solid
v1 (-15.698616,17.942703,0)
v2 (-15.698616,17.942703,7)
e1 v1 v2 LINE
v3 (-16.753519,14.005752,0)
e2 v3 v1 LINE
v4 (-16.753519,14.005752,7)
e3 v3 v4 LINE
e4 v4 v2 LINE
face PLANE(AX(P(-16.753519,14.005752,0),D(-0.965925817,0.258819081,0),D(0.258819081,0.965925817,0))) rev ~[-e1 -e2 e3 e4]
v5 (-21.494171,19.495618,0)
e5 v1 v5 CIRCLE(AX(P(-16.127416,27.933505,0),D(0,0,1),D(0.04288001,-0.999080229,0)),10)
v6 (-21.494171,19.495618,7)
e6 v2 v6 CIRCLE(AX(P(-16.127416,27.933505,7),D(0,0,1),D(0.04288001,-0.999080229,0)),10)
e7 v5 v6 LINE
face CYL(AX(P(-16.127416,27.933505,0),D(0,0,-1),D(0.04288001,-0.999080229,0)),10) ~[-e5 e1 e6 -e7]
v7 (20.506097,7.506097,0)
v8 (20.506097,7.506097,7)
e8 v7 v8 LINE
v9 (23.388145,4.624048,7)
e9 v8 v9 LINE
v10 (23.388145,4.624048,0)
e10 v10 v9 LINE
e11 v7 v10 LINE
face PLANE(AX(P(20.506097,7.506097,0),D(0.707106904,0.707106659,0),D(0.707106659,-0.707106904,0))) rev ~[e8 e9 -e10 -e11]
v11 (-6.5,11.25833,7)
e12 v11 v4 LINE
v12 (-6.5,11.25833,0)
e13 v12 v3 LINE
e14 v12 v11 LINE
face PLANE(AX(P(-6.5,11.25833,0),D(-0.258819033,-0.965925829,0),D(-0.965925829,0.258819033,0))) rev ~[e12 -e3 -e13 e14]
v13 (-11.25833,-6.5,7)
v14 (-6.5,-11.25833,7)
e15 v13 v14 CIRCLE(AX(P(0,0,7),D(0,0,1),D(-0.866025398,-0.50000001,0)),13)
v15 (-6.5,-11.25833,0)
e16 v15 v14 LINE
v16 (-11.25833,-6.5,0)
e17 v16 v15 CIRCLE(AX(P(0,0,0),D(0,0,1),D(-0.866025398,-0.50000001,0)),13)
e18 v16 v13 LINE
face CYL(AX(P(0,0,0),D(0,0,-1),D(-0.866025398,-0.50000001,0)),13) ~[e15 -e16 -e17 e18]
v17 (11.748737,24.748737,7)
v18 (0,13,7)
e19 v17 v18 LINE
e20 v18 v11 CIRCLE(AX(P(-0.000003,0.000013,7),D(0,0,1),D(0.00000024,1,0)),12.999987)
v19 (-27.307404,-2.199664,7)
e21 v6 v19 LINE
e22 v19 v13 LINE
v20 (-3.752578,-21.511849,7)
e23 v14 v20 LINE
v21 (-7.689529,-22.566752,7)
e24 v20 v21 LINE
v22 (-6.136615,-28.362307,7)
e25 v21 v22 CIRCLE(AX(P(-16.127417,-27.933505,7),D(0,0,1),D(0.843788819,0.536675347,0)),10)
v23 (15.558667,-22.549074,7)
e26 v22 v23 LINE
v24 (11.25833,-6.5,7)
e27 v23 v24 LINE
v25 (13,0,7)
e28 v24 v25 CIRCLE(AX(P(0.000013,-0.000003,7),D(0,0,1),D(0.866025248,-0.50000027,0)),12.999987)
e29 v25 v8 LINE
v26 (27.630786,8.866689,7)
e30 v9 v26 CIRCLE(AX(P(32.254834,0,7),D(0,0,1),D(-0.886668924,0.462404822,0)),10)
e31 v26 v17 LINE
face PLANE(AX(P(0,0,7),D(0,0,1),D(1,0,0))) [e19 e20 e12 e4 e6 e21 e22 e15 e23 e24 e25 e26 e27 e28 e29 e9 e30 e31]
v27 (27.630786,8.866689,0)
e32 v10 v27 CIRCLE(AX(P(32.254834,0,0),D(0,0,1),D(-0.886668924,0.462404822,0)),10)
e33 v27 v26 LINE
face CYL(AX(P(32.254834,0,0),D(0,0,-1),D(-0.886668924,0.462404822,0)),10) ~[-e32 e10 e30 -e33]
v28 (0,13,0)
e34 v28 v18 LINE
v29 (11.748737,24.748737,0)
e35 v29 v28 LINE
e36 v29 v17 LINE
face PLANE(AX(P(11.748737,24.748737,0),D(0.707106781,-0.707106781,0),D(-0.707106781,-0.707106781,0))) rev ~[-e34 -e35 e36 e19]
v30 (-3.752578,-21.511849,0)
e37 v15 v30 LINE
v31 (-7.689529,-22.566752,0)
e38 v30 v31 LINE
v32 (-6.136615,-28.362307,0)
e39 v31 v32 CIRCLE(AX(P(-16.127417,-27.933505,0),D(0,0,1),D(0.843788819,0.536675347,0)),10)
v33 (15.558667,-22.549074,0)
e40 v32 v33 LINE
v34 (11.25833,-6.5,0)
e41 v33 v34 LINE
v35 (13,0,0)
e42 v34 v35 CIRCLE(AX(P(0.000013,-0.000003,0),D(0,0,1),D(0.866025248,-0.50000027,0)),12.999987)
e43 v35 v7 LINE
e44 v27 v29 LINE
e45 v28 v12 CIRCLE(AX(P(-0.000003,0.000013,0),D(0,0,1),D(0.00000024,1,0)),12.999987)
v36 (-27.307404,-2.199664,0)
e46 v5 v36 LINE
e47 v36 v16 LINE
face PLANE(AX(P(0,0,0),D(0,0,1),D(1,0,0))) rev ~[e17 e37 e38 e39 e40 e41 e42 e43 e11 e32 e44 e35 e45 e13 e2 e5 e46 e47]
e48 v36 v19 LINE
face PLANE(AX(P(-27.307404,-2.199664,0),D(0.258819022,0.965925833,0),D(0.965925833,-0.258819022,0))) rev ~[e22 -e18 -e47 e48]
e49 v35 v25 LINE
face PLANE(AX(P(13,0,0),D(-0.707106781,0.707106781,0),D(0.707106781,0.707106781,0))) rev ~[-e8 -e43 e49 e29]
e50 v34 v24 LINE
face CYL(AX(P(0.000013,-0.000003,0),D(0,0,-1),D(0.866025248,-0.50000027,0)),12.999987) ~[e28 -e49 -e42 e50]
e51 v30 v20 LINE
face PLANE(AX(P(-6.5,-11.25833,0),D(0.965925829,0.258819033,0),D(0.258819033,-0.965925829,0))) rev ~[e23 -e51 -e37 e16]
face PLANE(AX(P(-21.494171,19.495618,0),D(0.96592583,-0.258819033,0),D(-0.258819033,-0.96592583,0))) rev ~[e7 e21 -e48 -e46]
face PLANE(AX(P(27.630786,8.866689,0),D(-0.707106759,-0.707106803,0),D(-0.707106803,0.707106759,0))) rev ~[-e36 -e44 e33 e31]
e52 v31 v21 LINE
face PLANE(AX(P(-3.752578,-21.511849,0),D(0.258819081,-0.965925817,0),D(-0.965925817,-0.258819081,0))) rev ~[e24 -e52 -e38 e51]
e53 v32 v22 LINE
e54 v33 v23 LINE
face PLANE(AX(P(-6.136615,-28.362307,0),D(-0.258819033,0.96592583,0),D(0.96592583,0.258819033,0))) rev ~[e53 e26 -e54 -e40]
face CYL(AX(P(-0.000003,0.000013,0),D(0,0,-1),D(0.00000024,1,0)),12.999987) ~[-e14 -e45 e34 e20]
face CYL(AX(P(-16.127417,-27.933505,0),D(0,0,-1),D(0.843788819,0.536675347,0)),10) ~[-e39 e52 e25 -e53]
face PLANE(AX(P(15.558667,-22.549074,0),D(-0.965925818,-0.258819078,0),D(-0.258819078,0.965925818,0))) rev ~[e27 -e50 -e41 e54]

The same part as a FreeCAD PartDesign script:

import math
import FreeCAD as App
import Part
import Sketcher
from FreeCAD import Vector
Q = App.Units.Quantity

doc = App.newDocument("Part")
body = doc.addObject("PartDesign::Body", "Body")

sketch1 = body.newObject("Sketcher::SketchObject", "Sketch")
sketch1.AttachmentSupport = (doc.getObject("XY_Plane"), [""])
sketch1.MapMode = "FlatFace"
sketch1.addGeometry(Part.LineSegment(Vector(11.748737, 24.748737, 0), Vector(0, 13, 0)), False)
sketch1.addGeometry(Part.ArcOfCircle(Part.Circle(Vector(-0.000003, 0.000013, 0), Vector(0, 0, 1), 12.999987), math.radians(89.999986), math.radians(120.000018)), False)
sketch1.addGeometry(Part.LineSegment(Vector(-6.5, 11.25833, 0), Vector(-16.753519, 14.005752, 0)), False)
sketch1.addGeometry(Part.LineSegment(Vector(-16.753519, 14.005752, 0), Vector(-15.698616, 17.942703, 0)), False)
sketch1.addGeometry(Part.ArcOfCircle(Part.Circle(Vector(-16.127416, 27.933505, 0), Vector(0, 0, 1), 10), math.radians(-87.542403), math.radians(237.54239)), False)
sketch1.addGeometry(Part.LineSegment(Vector(-21.494171, 19.495618, 0), Vector(-27.307404, -2.199664, 0)), False)
sketch1.addGeometry(Part.LineSegment(Vector(-27.307404, -2.199664, 0), Vector(-11.25833, -6.5, 0)), False)
sketch1.addGeometry(Part.ArcOfCircle(Part.Circle(Vector(0, 0, 0), Vector(0, 0, 1), 13), math.radians(-149.999999), math.radians(-120.000001)), False)
sketch1.addGeometry(Part.LineSegment(Vector(-6.5, -11.25833, 0), Vector(-3.752578, -21.511849, 0)), False)
sketch1.addGeometry(Part.LineSegment(Vector(-3.752578, -21.511849, 0), Vector(-7.689529, -22.566752, 0)), False)
sketch1.addGeometry(Part.ArcOfCircle(Part.Circle(Vector(-16.127417, -27.933505, 0), Vector(0, 0, 1), 10), math.radians(32.457601), math.radians(357.542394)), False)
sketch1.addGeometry(Part.LineSegment(Vector(-6.136615, -28.362307, 0), Vector(15.558667, -22.549074, 0)), False)
sketch1.addGeometry(Part.LineSegment(Vector(15.558667, -22.549074, 0), Vector(11.25833, -6.5, 0)), False)
sketch1.addGeometry(Part.ArcOfCircle(Part.Circle(Vector(0.000013, -0.000003, 0), Vector(0, 0, 1), 12.999987), math.radians(-30.000018), math.radians(0.000014)), False)
sketch1.addGeometry(Part.LineSegment(Vector(13, 0, 0), Vector(20.506097, 7.506097, 0)), False)
sketch1.addGeometry(Part.LineSegment(Vector(20.506097, 7.506097, 0), Vector(23.388145, 4.624048, 0)), False)
sketch1.addGeometry(Part.ArcOfCircle(Part.Circle(Vector(32.254834, 0, 0), Vector(0, 0, 1), 10), math.radians(152.457605), math.radians(477.542395)), False)
sketch1.addGeometry(Part.LineSegment(Vector(27.630786, 8.866689, 0), Vector(11.748737, 24.748737, 0)), False)
sketch1.addConstraint(Sketcher.Constraint("Coincident", 0, 2, 1, 1))
sketch1.addConstraint(Sketcher.Constraint("Coincident", 1, 2, 2, 1))
sketch1.addConstraint(Sketcher.Constraint("Coincident", 2, 2, 3, 1))
sketch1.addConstraint(Sketcher.Constraint("Coincident", 3, 2, 4, 1))
sketch1.addConstraint(Sketcher.Constraint("Coincident", 4, 2, 5, 1))
sketch1.addConstraint(Sketcher.Constraint("Coincident", 5, 2, 6, 1))
sketch1.addConstraint(Sketcher.Constraint("Coincident", 6, 2, 7, 1))
sketch1.addConstraint(Sketcher.Constraint("Coincident", 7, 2, 8, 1))
sketch1.addConstraint(Sketcher.Constraint("Coincident", 8, 2, 9, 1))
sketch1.addConstraint(Sketcher.Constraint("Coincident", 9, 2, 10, 1))
sketch1.addConstraint(Sketcher.Constraint("Coincident", 10, 2, 11, 1))
sketch1.addConstraint(Sketcher.Constraint("Coincident", 11, 2, 12, 1))
sketch1.addConstraint(Sketcher.Constraint("Coincident", 12, 2, 13, 1))
sketch1.addConstraint(Sketcher.Constraint("Coincident", 13, 2, 14, 1))
sketch1.addConstraint(Sketcher.Constraint("Coincident", 14, 2, 15, 1))
sketch1.addConstraint(Sketcher.Constraint("Coincident", 15, 2, 16, 1))
sketch1.addConstraint(Sketcher.Constraint("Coincident", 16, 2, 17, 1))
sketch1.addConstraint(Sketcher.Constraint("Coincident", 17, 2, 0, 1))
sketch1.addConstraint(Sketcher.Constraint("Coincident", 7, 3, -1, 1))
sketch1.addConstraint(Sketcher.Constraint("Equal", 4, 10))
sketch1.addConstraint(Sketcher.Constraint("Equal", 1, 13))
sketch1.addConstraint(Sketcher.Constraint("Equal", 10, 16))
sketch1.addConstraint(Sketcher.Constraint("Symmetric", 6, 2, 12, 2, -2))
sketch1.addConstraint(Sketcher.Constraint("Symmetric", 4, 3, 10, 3, -1))
sketch1.addConstraint(Sketcher.Constraint("Symmetric", 1, 2, 7, 2, -1))
sketch1.addConstraint(Sketcher.Constraint("PointOnObject", 16, 3, -1))
sketch1.addConstraint(Sketcher.Constraint("PointOnObject", 0, 2, -2))
sketch1.addConstraint(Sketcher.Constraint("PointOnObject", 13, 2, -1))
sketch1.addConstraint(Sketcher.Constraint("Perpendicular", 2, 3))
sketch1.addConstraint(Sketcher.Constraint("Parallel", 3, 5))
sketch1.addConstraint(Sketcher.Constraint("Perpendicular", 5, 6))
sketch1.addConstraint(Sketcher.Constraint("Perpendicular", 8, 9))
sketch1.addConstraint(Sketcher.Constraint("Parallel", 9, 11))
sketch1.addConstraint(Sketcher.Constraint("Perpendicular", 11, 12))
sketch1.addConstraint(Sketcher.Constraint("Parallel", 0, 14))
sketch1.addConstraint(Sketcher.Constraint("Perpendicular", 14, 15))
sketch1.addConstraint(Sketcher.Constraint("Parallel", 15, 17))
sketch1.addConstraint(Sketcher.Constraint("Equal", 0, 6))
sketch1.addConstraint(Sketcher.Constraint("Equal", 2, 8))
sketch1.addConstraint(Sketcher.Constraint("Equal", 3, 9))
sketch1.addConstraint(Sketcher.Constraint("Equal", 5, 11))
sketch1.addConstraint(Sketcher.Constraint("Equal", 6, 12))
sketch1.addConstraint(Sketcher.Constraint("Equal", 8, 14))
sketch1.addConstraint(Sketcher.Constraint("Equal", 9, 15))
sketch1.addConstraint(Sketcher.Constraint("Equal", 11, 17))
sketch1.addConstraint(Sketcher.Constraint("Radius", 4, Q("10 mm")))
sketch1.addConstraint(Sketcher.Constraint("Radius", 7, Q("13 mm")))
sketch1.addConstraint(Sketcher.Constraint("Angle", 0, Q("-135 deg")))
sketch1.addConstraint(Sketcher.Constraint("Angle", 2, Q("165.000001 deg")))
sketch1.addConstraint(Sketcher.Constraint("Angle", 8, Q("-75.000001 deg")))
sketch1.addConstraint(Sketcher.Constraint("DistanceY", -1, 1, 0, 2, Q("13 mm")))
sketch1.addConstraint(Sketcher.Constraint("DistanceX", 1, 2, -1, 1, Q("6.5 mm")))
sketch1.addConstraint(Sketcher.Constraint("Radius", 1, Q("12.999987 mm")))
sketch1.addConstraint(Sketcher.Constraint("DistanceX", 4, 3, 3, 2, Q("0.4288 mm")))
sketch1.addConstraint(Sketcher.Constraint("DistanceX", 5, 2, 1, 3, Q("27.307401 mm")))
sketch1.addConstraint(Sketcher.Constraint("DistanceX", 6, 2, 9, 2, Q("3.568801 mm")))
pad1 = body.newObject("PartDesign::Pad", "Pad")
pad1.Profile = sketch1
pad1.Length = 7

doc.recompute()
